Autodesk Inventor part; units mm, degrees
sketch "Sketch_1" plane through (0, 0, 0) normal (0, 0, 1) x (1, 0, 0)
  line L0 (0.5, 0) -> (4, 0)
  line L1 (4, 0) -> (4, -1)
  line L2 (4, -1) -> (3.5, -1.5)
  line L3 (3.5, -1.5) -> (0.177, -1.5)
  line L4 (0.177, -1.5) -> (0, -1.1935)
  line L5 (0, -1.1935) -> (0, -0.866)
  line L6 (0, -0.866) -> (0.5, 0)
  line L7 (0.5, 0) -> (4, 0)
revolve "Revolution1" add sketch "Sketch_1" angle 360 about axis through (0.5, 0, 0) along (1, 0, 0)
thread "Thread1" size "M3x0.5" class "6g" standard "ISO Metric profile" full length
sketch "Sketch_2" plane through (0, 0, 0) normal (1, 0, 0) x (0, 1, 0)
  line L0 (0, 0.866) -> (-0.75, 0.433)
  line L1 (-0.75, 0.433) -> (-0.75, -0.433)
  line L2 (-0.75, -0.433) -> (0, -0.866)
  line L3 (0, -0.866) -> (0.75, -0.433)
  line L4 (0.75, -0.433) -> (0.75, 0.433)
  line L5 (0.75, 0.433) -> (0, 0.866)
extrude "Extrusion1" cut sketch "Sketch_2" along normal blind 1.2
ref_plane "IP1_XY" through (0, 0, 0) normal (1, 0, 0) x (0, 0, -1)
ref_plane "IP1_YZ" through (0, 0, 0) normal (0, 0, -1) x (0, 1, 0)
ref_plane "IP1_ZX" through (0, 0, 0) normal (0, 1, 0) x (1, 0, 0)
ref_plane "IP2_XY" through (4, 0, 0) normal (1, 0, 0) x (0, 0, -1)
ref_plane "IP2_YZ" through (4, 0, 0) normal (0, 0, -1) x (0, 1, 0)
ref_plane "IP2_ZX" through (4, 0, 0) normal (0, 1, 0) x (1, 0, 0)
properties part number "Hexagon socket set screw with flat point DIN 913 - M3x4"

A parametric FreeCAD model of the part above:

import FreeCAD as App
import Part
import Sketcher
Q = App.Units.Quantity


def add_polygon(sketch, points):
    """Adds a closed chain of lines whose ends are joined by coincident constraints."""
    first, n = sketch.GeometryCount, len(points)
    for a, b in zip(points, points[1:] + points[:1]):
        sketch.addGeometry(Part.LineSegment(App.Vector(*a, 0), App.Vector(*b, 0)), False)
    for i in range(n):
        sketch.addConstraint(Sketcher.Constraint("Coincident", first + i, 2, first + (i + 1) % n, 1))

doc = App.newDocument("Part")
body = doc.addObject("PartDesign::Body", "Body")

sketch1 = doc.addObject("Sketcher::SketchObject", "Sketch")
body.addObject(sketch1)
sketch1.AttachmentSupport = (doc.XY_Plane, [""])
sketch1.MapMode = "FlatFace"
add_polygon(sketch1, [(4, 0), (0.5, 0), (0, -0.87), (0, -1.19), (0.18, -1.5), (3.5, -1.5), (4, -1)])
sketch1.addConstraint([
    Sketcher.Constraint("Horizontal", 0),
    Sketcher.Constraint("Vertical", 2),
    Sketcher.Constraint("Horizontal", 4),
    Sketcher.Constraint("Vertical", 6),
    Sketcher.Constraint("PointOnObject", 0, 2, -1),
    Sketcher.Constraint("PointOnObject", 1, 2, -2),
    Sketcher.Constraint("DistanceY", 6, 1, 6, 2, Q("1 mm")),
    Sketcher.Constraint("Angle", 1, Q("-120.0007 deg")),
    Sketcher.Constraint("Angle", 5, Q("45 deg")),
    Sketcher.Constraint("Distance", 1, Q("1 mm")),
    Sketcher.Constraint("DistanceX", 0, 2, 0, 1, Q("3.5 mm")),
    Sketcher.Constraint("DistanceX", 0, 2, 4, 2, Q("3 mm")),
    Sketcher.Constraint("DistanceX", 4, 1, 4, 2, Q("3.323 mm")),
    Sketcher.Constraint("Distance", 3, Q("0.354 mm")),
])
revolution = doc.addObject("PartDesign::Revolution", "Revolution")
body.addObject(revolution)
revolution.Profile = sketch1
revolution.ReferenceAxis = (sketch1, ["H_Axis"])
revolution.Angle = 360

sketch2 = doc.addObject("Sketcher::SketchObject", "Sketch001")
body.addObject(sketch2)
sketch2.AttachmentSupport = (doc.YZ_Plane, [""])
sketch2.MapMode = "FlatFace"
add_polygon(sketch2, [(0.8, 0.4), (0, 0.9), (-0.8, 0.4), (-0.8, -0.4), (0, -0.9), (0.8, -0.4)])
sketch2.addConstraint([
    Sketcher.Constraint("Vertical", 2),
    Sketcher.Constraint("Vertical", 5),
    Sketcher.Constraint("Symmetric", 0, 2, 3, 2, -1, 1),
    Sketcher.Constraint("Symmetric", 1, 2, 4, 2, -1, 1),
    Sketcher.Constraint("PointOnObject", 0, 2, -2),
    Sketcher.Constraint("Parallel", 0, 3),
    Sketcher.Constraint("Horizontal", 2, 2, 4, 2),
    Sketcher.Constraint("Angle", 0, Q("150.0007 deg")),
    Sketcher.Constraint("DistanceX", 2, 2, 4, 2, Q("1.5 mm")),
    Sketcher.Constraint("DistanceY", 2, 2, 2, 1, Q("0.866 mm")),
])
pocket1 = doc.addObject("PartDesign::Pocket", "Pocket")
body.addObject(pocket1)
pocket1.Profile = sketch2
pocket1.Length = 1.2
pocket1.Reversed = True

doc.recompute()
